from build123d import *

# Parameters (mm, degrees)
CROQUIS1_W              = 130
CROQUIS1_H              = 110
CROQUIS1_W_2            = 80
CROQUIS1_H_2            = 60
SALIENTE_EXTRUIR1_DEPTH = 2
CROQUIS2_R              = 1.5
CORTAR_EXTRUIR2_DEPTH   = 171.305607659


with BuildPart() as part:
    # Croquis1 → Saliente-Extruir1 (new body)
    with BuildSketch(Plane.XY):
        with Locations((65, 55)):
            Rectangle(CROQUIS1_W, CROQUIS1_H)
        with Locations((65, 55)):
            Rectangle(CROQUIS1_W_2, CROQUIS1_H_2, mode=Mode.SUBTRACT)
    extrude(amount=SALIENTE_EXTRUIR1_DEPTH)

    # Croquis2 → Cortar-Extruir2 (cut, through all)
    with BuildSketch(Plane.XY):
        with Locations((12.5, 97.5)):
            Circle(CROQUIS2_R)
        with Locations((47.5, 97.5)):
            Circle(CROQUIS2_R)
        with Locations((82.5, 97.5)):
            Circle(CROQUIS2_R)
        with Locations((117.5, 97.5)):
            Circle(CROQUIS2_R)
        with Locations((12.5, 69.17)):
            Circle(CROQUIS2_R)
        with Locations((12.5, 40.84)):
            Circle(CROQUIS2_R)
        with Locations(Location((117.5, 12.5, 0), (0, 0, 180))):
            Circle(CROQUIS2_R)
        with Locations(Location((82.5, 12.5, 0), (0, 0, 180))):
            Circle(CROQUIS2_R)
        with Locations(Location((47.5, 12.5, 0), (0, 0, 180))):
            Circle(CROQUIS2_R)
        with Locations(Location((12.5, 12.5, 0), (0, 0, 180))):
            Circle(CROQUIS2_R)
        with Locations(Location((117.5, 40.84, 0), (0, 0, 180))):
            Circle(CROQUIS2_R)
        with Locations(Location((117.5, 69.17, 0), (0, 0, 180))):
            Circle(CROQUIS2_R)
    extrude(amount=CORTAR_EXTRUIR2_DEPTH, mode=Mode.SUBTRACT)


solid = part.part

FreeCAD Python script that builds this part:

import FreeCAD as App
import Part
import Sketcher

V = App.Vector
Q = App.Units.Quantity


def add_polygon(sketch, points):
    """Adds a closed chain of lines whose ends are joined by coincident constraints."""
    first, n = sketch.GeometryCount, len(points)
    for a, b in zip(points, points[1:] + points[:1]):
        sketch.addGeometry(Part.LineSegment(App.Vector(*a, 0), App.Vector(*b, 0)), False)
    for i in range(n):
        sketch.addConstraint(Sketcher.Constraint("Coincident", first + i, 2, first + (i + 1) % n, 1))

doc = App.newDocument("Part")
params = doc.addObject("Spreadsheet::Sheet", "Params")
for row, (alias, value) in enumerate([
    ("sketch1_width", "130 mm"),
    ("sketch1_width2", "80 mm"),
    ("sketch1_height", "110 mm"),
    ("sketch1_height2", "60 mm"),
    ("pad1_length", "2 mm"),
    ("sketch2_diameter", "3 mm"),
], start=1):
    params.set(f"A{row}", alias)
    params.set(f"B{row}", "=" + value)
    params.setAlias(f"B{row}", alias)

body = doc.addObject("PartDesign::Body", "Body")

# Sketch on XY plane
sketch1 = body.newObject("Sketcher::SketchObject", "Sketch")
sketch1.AttachmentSupport = (doc.getObject("XY_Plane"), [""])
sketch1.MapMode = "FlatFace"
add_polygon(sketch1, [(0, 110), (0, 0), (130, 0), (130, 110)])  # lines 0-3
add_polygon(sketch1, [(105, 25), (25, 25), (25, 85), (105, 85)])  # lines 4-7
sketch1.addConstraint([
    Sketcher.Constraint("Vertical", 0),
    Sketcher.Constraint("Horizontal", 1),
    Sketcher.Constraint("Vertical", 2),
    Sketcher.Constraint("Horizontal", 3),
    Sketcher.Constraint("Horizontal", 4),
    Sketcher.Constraint("Vertical", 5),
    Sketcher.Constraint("Horizontal", 6),
    Sketcher.Constraint("Vertical", 7),
    Sketcher.Constraint("Coincident", 0, 2, -1, 1),
    Sketcher.Constraint("DistanceX", 1, 1, 1, 2, Q("130 mm")),
    Sketcher.Constraint("DistanceX", 4, 2, 4, 1, Q("80 mm")),
    Sketcher.Constraint("DistanceY", 0, 2, 0, 1, Q("110 mm")),
    Sketcher.Constraint("DistanceY", 5, 1, 5, 2, Q("60 mm")),
    Sketcher.Constraint("DistanceX", -1, 1, 4, 2, Q("25 mm")),
    Sketcher.Constraint("DistanceY", -1, 1, 4, 2, Q("25 mm")),
])
sketch1.setExpression("Constraints[17]", "Params.sketch1_width")
sketch1.setExpression("Constraints[18]", "Params.sketch1_width2")
sketch1.setExpression("Constraints[19]", "Params.sketch1_height")
sketch1.setExpression("Constraints[20]", "Params.sketch1_height2")
pad1 = body.newObject("PartDesign::Pad", "Pad")
pad1.Profile = sketch1
pad1.setExpression("Length", "Params.pad1_length")

# Sketch on XY plane
sketch2 = body.newObject("Sketcher::SketchObject", "Sketch001")
sketch2.AttachmentSupport = (doc.getObject("XY_Plane"), [""])
sketch2.MapMode = "FlatFace"
sketch2.addGeometry([
    Part.Circle(V(12.5, 97.5, 0), V(0, 0, 1), 1.5),  # 0
    Part.Circle(V(47.5, 97.5, 0), V(0, 0, 1), 1.5),  # 1
    Part.Circle(V(82.5, 97.5, 0), V(0, 0, 1), 1.5),  # 2
    Part.Circle(V(117.5, 97.5, 0), V(0, 0, 1), 1.5),  # 3
    Part.Circle(V(12.5, 69.17, 0), V(0, 0, 1), 1.5),  # 4
    Part.Circle(V(12.5, 40.84, 0), V(0, 0, 1), 1.5),  # 5
    Part.Circle(V(117.5, 12.5, 0), V(0, 0, 1), 1.5),  # 6
    Part.Circle(V(82.5, 12.5, 0), V(0, 0, 1), 1.5),  # 7
    Part.Circle(V(47.5, 12.5, 0), V(0, 0, 1), 1.5),  # 8
    Part.Circle(V(12.5, 12.5, 0), V(0, 0, 1), 1.5),  # 9
    Part.Circle(V(117.5, 40.84, 0), V(0, 0, 1), 1.5),  # 10
    Part.Circle(V(117.5, 69.17, 0), V(0, 0, 1), 1.5),  # 11
], False)
sketch2.addConstraint([
    Sketcher.Constraint("Equal", 0, 1),
    Sketcher.Constraint("Equal", 1, 2),
    Sketcher.Constraint("Equal", 2, 3),
    Sketcher.Constraint("Equal", 3, 4),
    Sketcher.Constraint("Equal", 4, 5),
    Sketcher.Constraint("Equal", 5, 6),
    Sketcher.Constraint("Equal", 6, 7),
    Sketcher.Constraint("Equal", 7, 8),
    Sketcher.Constraint("Equal", 8, 9),
    Sketcher.Constraint("Equal", 9, 10),
    Sketcher.Constraint("Equal", 10, 11),
    Sketcher.Constraint("Horizontal", 0, 3, 1, 3),
    Sketcher.Constraint("Horizontal", 1, 3, 2, 3),
    Sketcher.Constraint("Horizontal", 2, 3, 3, 3),
    Sketcher.Constraint("Horizontal", 6, 3, 7, 3),
    Sketcher.Constraint("Horizontal", 7, 3, 8, 3),
    Sketcher.Constraint("Horizontal", 8, 3, 9, 3),
    Sketcher.Constraint("Horizontal", 5, 3, 10, 3),
    Sketcher.Constraint("Horizontal", 4, 3, 11, 3),
    Sketcher.Constraint("Vertical", 0, 3, 4, 3),
    Sketcher.Constraint("Vertical", 4, 3, 5, 3),
    Sketcher.Constraint("Vertical", 3, 3, 6, 3),
    Sketcher.Constraint("Vertical", 2, 3, 7, 3),
    Sketcher.Constraint("Vertical", 1, 3, 8, 3),
    Sketcher.Constraint("Vertical", 5, 3, 9, 3),
    Sketcher.Constraint("Vertical", 6, 3, 10, 3),
    Sketcher.Constraint("Vertical", 10, 3, 11, 3),
    Sketcher.Constraint("Diameter", 0, Q("3 mm")),
    Sketcher.Constraint("DistanceX", 0, 3, 1, 3, Q("35 mm")),
    Sketcher.Constraint("DistanceX", 1, 3, 2, 3, Q("35 mm")),
    Sketcher.Constraint("DistanceX", 2, 3, 3, 3, Q("35 mm")),
    Sketcher.Constraint("DistanceY", 6, 3, 3, 3, Q("85 mm")),
    Sketcher.Constraint("DistanceX", -1, 1, 0, 3, Q("12.5 mm")),
    Sketcher.Constraint("DistanceY", -1, 1, 0, 3, Q("97.5 mm")),
    Sketcher.Constraint("DistanceY", -1, 1, 4, 3, Q("69.17 mm")),
    Sketcher.Constraint("DistanceY", -1, 1, 5, 3, Q("40.84 mm")),
])
sketch2.setExpression("Constraints[27]", "Params.sketch2_diameter")
pocket1 = body.newObject("PartDesign::Pocket", "Pocket")
pocket1.Profile = sketch2
pocket1.Type = "ThroughAll"
pocket1.Reversed = True

doc.recompute()
